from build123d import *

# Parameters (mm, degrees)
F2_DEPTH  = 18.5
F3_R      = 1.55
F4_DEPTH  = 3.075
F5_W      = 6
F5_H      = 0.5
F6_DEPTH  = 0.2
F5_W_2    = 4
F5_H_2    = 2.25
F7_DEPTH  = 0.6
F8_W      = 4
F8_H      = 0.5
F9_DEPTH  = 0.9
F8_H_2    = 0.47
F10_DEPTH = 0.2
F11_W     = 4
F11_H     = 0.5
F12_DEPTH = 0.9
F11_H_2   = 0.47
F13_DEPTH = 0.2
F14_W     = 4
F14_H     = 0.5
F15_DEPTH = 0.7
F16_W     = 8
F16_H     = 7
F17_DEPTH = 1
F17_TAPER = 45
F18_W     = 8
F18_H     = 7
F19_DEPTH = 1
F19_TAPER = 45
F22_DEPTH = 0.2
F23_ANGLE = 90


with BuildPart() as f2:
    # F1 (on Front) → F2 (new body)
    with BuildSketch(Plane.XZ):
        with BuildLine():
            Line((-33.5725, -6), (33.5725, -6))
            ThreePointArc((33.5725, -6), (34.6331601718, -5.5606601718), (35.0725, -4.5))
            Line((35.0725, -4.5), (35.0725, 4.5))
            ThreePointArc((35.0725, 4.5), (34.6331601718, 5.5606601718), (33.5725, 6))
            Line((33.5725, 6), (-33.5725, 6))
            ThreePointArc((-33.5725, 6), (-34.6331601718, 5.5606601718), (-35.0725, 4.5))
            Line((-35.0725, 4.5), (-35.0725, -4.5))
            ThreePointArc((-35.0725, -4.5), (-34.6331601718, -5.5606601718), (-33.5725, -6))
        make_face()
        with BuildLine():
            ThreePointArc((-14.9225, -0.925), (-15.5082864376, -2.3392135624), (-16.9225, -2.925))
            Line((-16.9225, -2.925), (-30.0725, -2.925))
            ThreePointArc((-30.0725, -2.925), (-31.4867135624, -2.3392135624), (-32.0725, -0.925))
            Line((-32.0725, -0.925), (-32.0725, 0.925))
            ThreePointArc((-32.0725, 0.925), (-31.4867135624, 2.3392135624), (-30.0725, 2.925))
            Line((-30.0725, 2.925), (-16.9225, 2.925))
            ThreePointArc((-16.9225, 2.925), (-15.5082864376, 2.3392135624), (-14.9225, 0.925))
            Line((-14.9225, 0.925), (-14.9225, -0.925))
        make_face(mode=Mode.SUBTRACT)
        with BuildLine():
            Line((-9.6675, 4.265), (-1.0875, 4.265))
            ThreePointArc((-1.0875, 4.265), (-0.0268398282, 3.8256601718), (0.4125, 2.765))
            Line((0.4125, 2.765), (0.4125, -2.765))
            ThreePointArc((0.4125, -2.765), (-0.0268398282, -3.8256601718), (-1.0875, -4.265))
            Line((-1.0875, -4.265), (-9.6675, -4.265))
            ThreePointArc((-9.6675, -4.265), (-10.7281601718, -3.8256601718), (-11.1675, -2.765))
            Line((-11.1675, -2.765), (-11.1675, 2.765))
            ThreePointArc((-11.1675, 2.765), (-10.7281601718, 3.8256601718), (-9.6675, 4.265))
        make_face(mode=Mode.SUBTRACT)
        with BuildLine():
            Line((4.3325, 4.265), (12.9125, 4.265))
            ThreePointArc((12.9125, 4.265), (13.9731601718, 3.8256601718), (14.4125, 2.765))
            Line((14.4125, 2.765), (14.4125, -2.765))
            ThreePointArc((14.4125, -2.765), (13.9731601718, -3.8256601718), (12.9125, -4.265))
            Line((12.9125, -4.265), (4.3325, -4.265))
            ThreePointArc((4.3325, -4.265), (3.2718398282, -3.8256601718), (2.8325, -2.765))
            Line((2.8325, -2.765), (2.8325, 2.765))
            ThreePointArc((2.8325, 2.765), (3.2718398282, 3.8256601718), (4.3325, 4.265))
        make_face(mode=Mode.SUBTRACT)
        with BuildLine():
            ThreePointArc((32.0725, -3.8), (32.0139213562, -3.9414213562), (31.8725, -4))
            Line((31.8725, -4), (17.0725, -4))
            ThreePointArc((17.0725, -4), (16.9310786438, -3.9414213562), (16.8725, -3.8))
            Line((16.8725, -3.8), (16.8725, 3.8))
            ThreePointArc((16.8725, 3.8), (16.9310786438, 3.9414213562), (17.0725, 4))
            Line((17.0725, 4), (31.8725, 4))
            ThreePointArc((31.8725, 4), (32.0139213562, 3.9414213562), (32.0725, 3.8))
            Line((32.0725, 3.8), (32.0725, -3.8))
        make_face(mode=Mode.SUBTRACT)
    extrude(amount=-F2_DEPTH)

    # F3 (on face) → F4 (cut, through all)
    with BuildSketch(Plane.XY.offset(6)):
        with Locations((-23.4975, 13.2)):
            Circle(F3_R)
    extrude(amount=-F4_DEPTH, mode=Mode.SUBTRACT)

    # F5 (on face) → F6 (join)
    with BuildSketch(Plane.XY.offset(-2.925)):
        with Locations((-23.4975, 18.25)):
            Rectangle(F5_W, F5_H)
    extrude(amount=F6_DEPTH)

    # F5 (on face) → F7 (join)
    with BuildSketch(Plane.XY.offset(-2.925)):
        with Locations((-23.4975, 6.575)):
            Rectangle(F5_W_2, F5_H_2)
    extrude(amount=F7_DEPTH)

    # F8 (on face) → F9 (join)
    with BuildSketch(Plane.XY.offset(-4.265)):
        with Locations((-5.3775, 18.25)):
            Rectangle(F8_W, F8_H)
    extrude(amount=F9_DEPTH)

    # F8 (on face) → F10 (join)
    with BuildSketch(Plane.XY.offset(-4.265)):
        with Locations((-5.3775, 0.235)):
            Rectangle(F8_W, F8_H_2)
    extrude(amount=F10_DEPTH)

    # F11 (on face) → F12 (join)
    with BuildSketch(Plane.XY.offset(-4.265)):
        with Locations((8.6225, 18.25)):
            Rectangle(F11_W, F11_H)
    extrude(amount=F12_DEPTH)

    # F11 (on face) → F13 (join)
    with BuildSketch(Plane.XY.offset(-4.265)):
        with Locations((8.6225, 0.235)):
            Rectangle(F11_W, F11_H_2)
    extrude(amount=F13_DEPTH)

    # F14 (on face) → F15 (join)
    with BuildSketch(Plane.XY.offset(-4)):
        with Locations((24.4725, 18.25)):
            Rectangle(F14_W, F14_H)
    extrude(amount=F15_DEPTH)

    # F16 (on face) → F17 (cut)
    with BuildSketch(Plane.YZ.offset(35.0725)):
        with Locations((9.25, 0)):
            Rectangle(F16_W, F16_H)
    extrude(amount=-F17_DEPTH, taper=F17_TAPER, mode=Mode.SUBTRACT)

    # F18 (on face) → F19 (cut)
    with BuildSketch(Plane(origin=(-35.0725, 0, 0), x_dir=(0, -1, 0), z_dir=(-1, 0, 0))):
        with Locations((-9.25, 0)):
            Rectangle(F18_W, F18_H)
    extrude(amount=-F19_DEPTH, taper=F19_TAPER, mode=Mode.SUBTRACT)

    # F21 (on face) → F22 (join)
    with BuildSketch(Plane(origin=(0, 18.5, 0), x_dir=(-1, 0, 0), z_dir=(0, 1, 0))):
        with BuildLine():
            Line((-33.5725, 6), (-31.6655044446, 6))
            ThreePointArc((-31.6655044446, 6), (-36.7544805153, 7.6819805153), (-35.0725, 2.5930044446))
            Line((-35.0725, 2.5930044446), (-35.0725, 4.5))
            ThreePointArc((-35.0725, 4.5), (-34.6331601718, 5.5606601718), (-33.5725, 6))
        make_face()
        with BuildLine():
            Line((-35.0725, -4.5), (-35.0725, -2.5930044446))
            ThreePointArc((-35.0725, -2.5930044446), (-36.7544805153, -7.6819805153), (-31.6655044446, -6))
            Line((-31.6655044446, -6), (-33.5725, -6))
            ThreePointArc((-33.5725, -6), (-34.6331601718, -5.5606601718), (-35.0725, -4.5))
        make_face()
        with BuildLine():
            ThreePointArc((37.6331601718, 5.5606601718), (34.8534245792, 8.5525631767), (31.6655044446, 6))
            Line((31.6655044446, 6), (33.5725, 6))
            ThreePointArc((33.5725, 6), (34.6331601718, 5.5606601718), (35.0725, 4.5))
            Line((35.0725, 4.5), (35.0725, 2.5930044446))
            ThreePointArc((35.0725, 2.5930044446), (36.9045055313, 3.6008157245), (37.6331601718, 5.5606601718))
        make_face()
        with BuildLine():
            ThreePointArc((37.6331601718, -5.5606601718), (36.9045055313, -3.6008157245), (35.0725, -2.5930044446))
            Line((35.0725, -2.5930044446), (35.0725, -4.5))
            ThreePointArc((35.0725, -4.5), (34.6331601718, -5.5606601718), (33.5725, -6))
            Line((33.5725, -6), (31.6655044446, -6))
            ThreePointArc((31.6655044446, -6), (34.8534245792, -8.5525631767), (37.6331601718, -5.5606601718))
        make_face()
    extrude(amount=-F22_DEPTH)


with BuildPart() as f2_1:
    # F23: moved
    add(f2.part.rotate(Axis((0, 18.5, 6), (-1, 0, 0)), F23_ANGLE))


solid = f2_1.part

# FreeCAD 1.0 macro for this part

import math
import FreeCAD as App
import Part
import Sketcher


def add_polygon(sketch, points):
    """Adds a closed chain of lines whose ends are joined by coincident constraints."""
    first, n = sketch.GeometryCount, len(points)
    for a, b in zip(points, points[1:] + points[:1]):
        sketch.addGeometry(Part.LineSegment(App.Vector(*a, 0), App.Vector(*b, 0)), False)
    for i in range(n):
        sketch.addConstraint(Sketcher.Constraint("Coincident", first + i, 2, first + (i + 1) % n, 1))

doc = App.newDocument("Part")
params = doc.addObject("Spreadsheet::Sheet", "Params")
for row, (alias, value) in enumerate([
    ("sketch1_radius", "2 mm"),
    ("sketch1_radius2", "1.5 mm"),
    ("sketch1_radius3", "0.2 mm"),
    ("sketch1_height", "9 mm"),
    ("sketch1_width", "14.8 mm"),
    ("pad1_length", "18.5 mm"),
    ("sketch2_diameter", "3.1 mm"),
    ("pocket1_length", "3.075 mm"),
    ("sketch3_width", "6 mm"),
    ("sketch3_height", "0.5 mm"),
    ("pad2_length", "0.2 mm"),
    ("sketch4_width", "4 mm"),
    ("sketch4_height", "2.25 mm"),
    ("pad3_length", "0.6 mm"),
    ("sketch5_width", "4 mm"),
    ("sketch5_height", "0.5 mm"),
    ("pad4_length", "0.9 mm"),
    ("sketch6_width", "4 mm"),
    ("sketch6_height", "0.47 mm"),
    ("pad5_length", "0.2 mm"),
    ("sketch7_width", "4 mm"),
    ("sketch7_height", "0.5 mm"),
    ("pad6_length", "0.9 mm"),
    ("sketch8_width", "4 mm"),
    ("sketch8_height", "0.47 mm"),
    ("pad7_length", "0.2 mm"),
    ("sketch9_width", "4 mm"),
    ("sketch9_height", "0.5 mm"),
    ("pad8_length", "0.7 mm"),
    ("sketch10_width", "8 mm"),
    ("sketch10_height", "7 mm"),
    ("pocket2_length", "1 mm"),
    ("pocket2_taper", "-45 deg"),
    ("sketch11_width", "8 mm"),
    ("sketch11_height", "7 mm"),
    ("pocket3_length", "1 mm"),
    ("pocket3_taper", "-45 deg"),
    ("sketch12_radius", "3 mm"),
    ("sketch12_radius2", "1.5 mm"),
    ("pad9_length", "0.2 mm"),
], start=1):
    params.set(f"A{row}", alias)
    params.set(f"B{row}", "=" + value)
    params.setAlias(f"B{row}", alias)

body = doc.addObject("PartDesign::Body", "Body")

sketch1 = body.newObject("Sketcher::SketchObject", "Sketch")
sketch1.AttachmentSupport = (doc.getObject("XZ_Plane"), [""])
sketch1.MapMode = "FlatFace"
sketch1.addGeometry([
    Part.LineSegment(App.Vector(-33.57, -6, 0), App.Vector(33.57, -6, 0)),
    Part.ArcOfCircle(Part.Circle(App.Vector(33.57, -4.5, 0), App.Vector(0, 0, 1), 1.5), math.radians(-90), math.radians(0)),
    Part.LineSegment(App.Vector(35.07, -4.5, 0), App.Vector(35.07, 4.5, 0)),
    Part.ArcOfCircle(Part.Circle(App.Vector(33.57, 4.5, 0), App.Vector(0, 0, 1), 1.5), math.radians(0), math.radians(90)),
    Part.LineSegment(App.Vector(33.57, 6, 0), App.Vector(-33.57, 6, 0)),
    Part.ArcOfCircle(Part.Circle(App.Vector(-33.57, 4.5, 0), App.Vector(0, 0, 1), 1.5), math.radians(90), math.radians(180)),
    Part.LineSegment(App.Vector(-35.07, 4.5, 0), App.Vector(-35.07, -4.5, 0)),
    Part.ArcOfCircle(Part.Circle(App.Vector(-33.57, -4.5, 0), App.Vector(0, 0, 1), 1.5), math.radians(180), math.radians(270)),
    Part.LineSegment(App.Vector(-14.92, 0.93, 0), App.Vector(-14.92, -0.93, 0)),
    Part.ArcOfCircle(Part.Circle(App.Vector(-16.92, -0.93, 0), App.Vector(0, 0, 1), 2), math.radians(-90), math.radians(0)),
    Part.LineSegment(App.Vector(-16.92, -2.92, 0), App.Vector(-30.07, -2.92, 0)),
    Part.ArcOfCircle(Part.Circle(App.Vector(-30.07, -0.93, 0), App.Vector(0, 0, 1), 2), math.radians(180), math.radians(270)),
    Part.LineSegment(App.Vector(-32.07, -0.93, 0), App.Vector(-32.07, 0.93, 0)),
    Part.ArcOfCircle(Part.Circle(App.Vector(-30.07, 0.93, 0), App.Vector(0, 0, 1), 2), math.radians(90), math.radians(180)),
    Part.LineSegment(App.Vector(-30.07, 2.92, 0), App.Vector(-16.92, 2.92, 0)),
    Part.ArcOfCircle(Part.Circle(App.Vector(-16.92, 0.93, 0), App.Vector(0, 0, 1), 2), math.radians(0), math.radians(90)),
    Part.ArcOfCircle(Part.Circle(App.Vector(-9.67, 2.77, 0), App.Vector(0, 0, 1), 1.5), math.radians(90), math.radians(180)),
    Part.LineSegment(App.Vector(-9.67, 4.26, 0), App.Vector(-1.09, 4.26, 0)),
    Part.ArcOfCircle(Part.Circle(App.Vector(-1.09, 2.77, 0), App.Vector(0, 0, 1), 1.5), math.radians(0), math.radians(90)),
    Part.LineSegment(App.Vector(0.41, 2.77, 0), App.Vector(0.41, -2.77, 0)),
    Part.ArcOfCircle(Part.Circle(App.Vector(-1.09, -2.77, 0), App.Vector(0, 0, 1), 1.5), math.radians(-90), math.radians(0)),
    Part.LineSegment(App.Vector(-1.09, -4.26, 0), App.Vector(-9.67, -4.26, 0)),
    Part.ArcOfCircle(Part.Circle(App.Vector(-9.67, -2.77, 0), App.Vector(0, 0, 1), 1.5), math.radians(180), math.radians(270)),
    Part.LineSegment(App.Vector(-11.17, -2.77, 0), App.Vector(-11.17, 2.77, 0)),
    Part.ArcOfCircle(Part.Circle(App.Vector(4.33, 2.77, 0), App.Vector(0, 0, 1), 1.5), math.radians(90), math.radians(180)),
    Part.LineSegment(App.Vector(4.33, 4.26, 0), App.Vector(12.91, 4.26, 0)),
    Part.ArcOfCircle(Part.Circle(App.Vector(12.91, 2.77, 0), App.Vector(0, 0, 1), 1.5), math.radians(0), math.radians(90)),
    Part.LineSegment(App.Vector(14.41, 2.77, 0), App.Vector(14.41, -2.77, 0)),
    Part.ArcOfCircle(Part.Circle(App.Vector(12.91, -2.77, 0), App.Vector(0, 0, 1), 1.5), math.radians(-90), math.radians(0)),
    Part.LineSegment(App.Vector(12.91, -4.26, 0), App.Vector(4.33, -4.26, 0)),
    Part.ArcOfCircle(Part.Circle(App.Vector(4.33, -2.77, 0), App.Vector(0, 0, 1), 1.5), math.radians(180), math.radians(270)),
    Part.LineSegment(App.Vector(2.83, -2.77, 0), App.Vector(2.83, 2.77, 0)),
    Part.LineSegment(App.Vector(32.07, 3.8, 0), App.Vector(32.07, -3.8, 0)),
    Part.ArcOfCircle(Part.Circle(App.Vector(31.87, -3.8, 0), App.Vector(0, 0, 1), 0.2), math.radians(-90), math.radians(0)),
    Part.LineSegment(App.Vector(31.87, -4, 0), App.Vector(17.07, -4, 0)),
    Part.ArcOfCircle(Part.Circle(App.Vector(17.07, -3.8, 0), App.Vector(0, 0, 1), 0.2), math.radians(180), math.radians(270)),
    Part.LineSegment(App.Vector(16.87, -3.8, 0), App.Vector(16.87, 3.8, 0)),
    Part.ArcOfCircle(Part.Circle(App.Vector(17.07, 3.8, 0), App.Vector(0, 0, 1), 0.2), math.radians(90), math.radians(180)),
    Part.LineSegment(App.Vector(17.07, 4, 0), App.Vector(31.87, 4, 0)),
    Part.ArcOfCircle(Part.Circle(App.Vector(31.87, 3.8, 0), App.Vector(0, 0, 1), 0.2), math.radians(0), math.radians(90)),
], False)
sketch1.addConstraint([
    Sketcher.Constraint("Tangent", 0, 2, 1, 1),
    Sketcher.Constraint("Tangent", 1, 2, 2, 1),
    Sketcher.Constraint("Tangent", 2, 2, 3, 1),
    Sketcher.Constraint("Tangent", 3, 2, 4, 1),
    Sketcher.Constraint("Tangent", 4, 2, 5, 1),
    Sketcher.Constraint("Tangent", 5, 2, 6, 1),
    Sketcher.Constraint("Tangent", 6, 2, 7, 1),
    Sketcher.Constraint("Tangent", 7, 2, 0, 1),
    Sketcher.Constraint("Tangent", 8, 2, 9, 2),
    Sketcher.Constraint("Tangent", 9, 1, 10, 1),
    Sketcher.Constraint("Tangent", 10, 2, 11, 2),
    Sketcher.Constraint("Tangent", 11, 1, 12, 1),
    Sketcher.Constraint("Tangent", 12, 2, 13, 2),
    Sketcher.Constraint("Tangent", 13, 1, 14, 1),
    Sketcher.Constraint("Tangent", 14, 2, 15, 2),
    Sketcher.Constraint("Tangent", 15, 1, 8, 1),
    Sketcher.Constraint("Tangent", 16, 1, 17, 1),
    Sketcher.Constraint("Tangent", 17, 2, 18, 2),
    Sketcher.Constraint("Tangent", 18, 1, 19, 1),
    Sketcher.Constraint("Tangent", 19, 2, 20, 2),
    Sketcher.Constraint("Tangent", 20, 1, 21, 1),
    Sketcher.Constraint("Tangent", 21, 2, 22, 2),
    Sketcher.Constraint("Tangent", 22, 1, 23, 1),
    Sketcher.Constraint("Tangent", 23, 2, 16, 2),
    Sketcher.Constraint("Tangent", 24, 1, 25, 1),
    Sketcher.Constraint("Tangent", 25, 2, 26, 2),
    Sketcher.Constraint("Tangent", 26, 1, 27, 1),
    Sketcher.Constraint("Tangent", 27, 2, 28, 2),
    Sketcher.Constraint("Tangent", 28, 1, 29, 1),
    Sketcher.Constraint("Tangent", 29, 2, 30, 2),
    Sketcher.Constraint("Tangent", 30, 1, 31, 1),
    Sketcher.Constraint("Tangent", 31, 2, 24, 2),
    Sketcher.Constraint("Tangent", 32, 2, 33, 2),
    Sketcher.Constraint("Tangent", 33, 1, 34, 1),
    Sketcher.Constraint("Tangent", 34, 2, 35, 2),
    Sketcher.Constraint("Tangent", 35, 1, 36, 1),
    Sketcher.Constraint("Tangent", 36, 2, 37, 2),
    Sketcher.Constraint("Tangent", 37, 1, 38, 1),
    Sketcher.Constraint("Tangent", 38, 2, 39, 2),
    Sketcher.Constraint("Tangent", 39, 1, 32, 1),
    Sketcher.Constraint("Horizontal", 0),
    Sketcher.Constraint("Vertical", 2),
    Sketcher.Constraint("Horizontal", 4),
    Sketcher.Constraint("Vertical", 6),
    Sketcher.Constraint("Vertical", 8),
    Sketcher.Constraint("Horizontal", 10),
    Sketcher.Constraint("Vertical", 12),
    Sketcher.Constraint("Horizontal", 14),
    Sketcher.Constraint("Horizontal", 17),
    Sketcher.Constraint("Vertical", 19),
    Sketcher.Constraint("Horizontal", 21),
    Sketcher.Constraint("Vertical", 23),
    Sketcher.Constraint("Horizontal", 25),
    Sketcher.Constraint("Vertical", 27),
    Sketcher.Constraint("Horizontal", 29),
    Sketcher.Constraint("Vertical", 31),
    Sketcher.Constraint("Vertical", 32),
    Sketcher.Constraint("Horizontal", 34),
    Sketcher.Constraint("Vertical", 36),
    Sketcher.Constraint("Horizontal", 38),
    Sketcher.Constraint("Equal", 1, 3),
    Sketcher.Constraint("Equal", 3, 5),
    Sketcher.Constraint("Equal", 5, 7),
    Sketcher.Constraint("Equal", 9, 11),
    Sketcher.Constraint("Equal", 11, 13),
    Sketcher.Constraint("Equal", 13, 15),
    Sketcher.Constraint("Equal", 7, 16),
    Sketcher.Constraint("Equal", 16, 18),
    Sketcher.Constraint("Equal", 18, 20),
    Sketcher.Constraint("Equal", 20, 22),
    Sketcher.Constraint("Equal", 22, 24),
    Sketcher.Constraint("Equal", 24, 26),
    Sketcher.Constraint("Equal", 26, 28),
    Sketcher.Constraint("Equal", 28, 30),
    Sketcher.Constraint("Equal", 33, 35),
    Sketcher.Constraint("Equal", 35, 37),
    Sketcher.Constraint("Equal", 37, 39),
    Sketcher.Constraint("Symmetric", 1, 3, 5, 3, -1, 1),
    Sketcher.Constraint("Horizontal", 18, 3, 24, 3),
    Sketcher.Constraint("Horizontal", 22, 3, 28, 3),
    Sketcher.Constraint("Equal", 21, 25),
    Sketcher.Constraint("Radius", 9, 2.0),
    Sketcher.Constraint("Radius", 1, 1.5),
    Sketcher.Constraint("Radius", 33, 0.2),
    Sketcher.Constraint("DistanceY", 2, 1, 2, 2, 9.0),
    Sketcher.Constraint("DistanceX", 34, 2, 34, 1, 14.8),
    Sketcher.Constraint("DistanceY", 32, 2, 32, 1, 7.6),
    Sketcher.Constraint("DistanceY", 33, 1, -1, 1, 4.0),
    Sketcher.Constraint("DistanceX", 16, 3, 24, 3, 14.0),
    Sketcher.Constraint("DistanceX", 5, 2, 13, 3, 5.0),
    Sketcher.Constraint("DistanceX", 32, 2, 1, 2, 3.0),
    Sketcher.Constraint("DistanceX", 10, 2, 10, 1, 13.15),
    Sketcher.Constraint("DistanceX", 17, 1, 17, 2, 8.58),
    Sketcher.Constraint("DistanceY", 8, 2, 8, 1, 1.85),
    Sketcher.Constraint("DistanceY", 19, 2, 19, 1, 5.53),
    Sketcher.Constraint("DistanceX", 0, 1, 0, 2, 67.145),
    Sketcher.Constraint("DistanceY", 15, 3, 16, 3, 1.84),
    Sketcher.Constraint("DistanceX", 26, 3, 3, 3, 20.66),
    Sketcher.Constraint("DistanceY", 9, 3, -1, 1, 0.925),
])
sketch1.setExpression("Constraints[81]", "Params.sketch1_radius")
sketch1.setExpression("Constraints[82]", "Params.sketch1_radius2")
sketch1.setExpression("Constraints[83]", "Params.sketch1_radius3")
sketch1.setExpression("Constraints[84]", "Params.sketch1_height")
sketch1.setExpression("Constraints[85]", "Params.sketch1_width")
pad1 = body.newObject("PartDesign::Pad", "Pad")
pad1.Profile = sketch1
pad1.setExpression("Length", "Params.pad1_length")
pad1.Reversed = True

sketch2 = body.newObject("Sketcher::SketchObject", "Sketch001")
sketch2.AttachmentSupport = (doc.getObject("XY_Plane"), [""])
sketch2.MapMode = "FlatFace"
sketch2.AttachmentOffset = App.Placement(App.Vector(0, 0, 6), App.Rotation())
sketch2.addGeometry(Part.Circle(App.Vector(-23.5, 13.2, 0), App.Vector(0, 0, 1), 1.6), False)
sketch2.addConstraint([
    Sketcher.Constraint("Diameter", 0, 3.1),
    Sketcher.Constraint("DistanceY", -1, 1, 0, 3, 13.2),
    Sketcher.Constraint("DistanceX", 0, 3, -1, 1, 23.4975),
])
sketch2.setExpression("Constraints[0]", "Params.sketch2_diameter")
pocket1 = body.newObject("PartDesign::Pocket", "Pocket")
pocket1.Profile = sketch2
pocket1.setExpression("Length", "Params.pocket1_length")

sketch3 = body.newObject("Sketcher::SketchObject", "Sketch002")
sketch3.AttachmentSupport = (doc.getObject("XY_Plane"), [""])
sketch3.MapMode = "FlatFace"
sketch3.AttachmentOffset = App.Placement(App.Vector(0, 0, -2.925), App.Rotation())
add_polygon(sketch3, [(-26.5, 18.5), (-26.5, 18), (-20.5, 18), (-20.5, 18.5)])
sketch3.addConstraint([
    Sketcher.Constraint("Vertical", 0),
    Sketcher.Constraint("Horizontal", 1),
    Sketcher.Constraint("Vertical", 2),
    Sketcher.Constraint("Horizontal", 3),
    Sketcher.Constraint("DistanceX", 1, 1, 1, 2, 6.0),
    Sketcher.Constraint("DistanceY", 0, 2, 0, 1, 0.5),
    Sketcher.Constraint("DistanceY", -1, 1, 0, 2, 18.0),
    Sketcher.Constraint("DistanceX", 0, 2, -1, 1, 26.4975),
])
sketch3.setExpression("Constraints[8]", "Params.sketch3_width")
sketch3.setExpression("Constraints[9]", "Params.sketch3_height")
pad2 = body.newObject("PartDesign::Pad", "Pad001")
pad2.Profile = sketch3
pad2.setExpression("Length", "Params.pad2_length")

sketch4 = body.newObject("Sketcher::SketchObject", "Sketch003")
sketch4.AttachmentSupport = (doc.getObject("XY_Plane"), [""])
sketch4.MapMode = "FlatFace"
sketch4.AttachmentOffset = App.Placement(App.Vector(0, 0, -2.925), App.Rotation())
add_polygon(sketch4, [(-25.5, 7.7), (-25.5, 5.5), (-21.5, 5.5), (-21.5, 7.7)])
sketch4.addConstraint([
    Sketcher.Constraint("Vertical", 0),
    Sketcher.Constraint("Horizontal", 1),
    Sketcher.Constraint("Vertical", 2),
    Sketcher.Constraint("Horizontal", 3),
    Sketcher.Constraint("DistanceX", 1, 1, 1, 2, 4.0),
    Sketcher.Constraint("DistanceY", 0, 2, 0, 1, 2.25),
    Sketcher.Constraint("DistanceY", -1, 1, 2, 2, 7.7),
    Sketcher.Constraint("DistanceX", 0, 2, -1, 1, 25.4975),
])
sketch4.setExpression("Constraints[8]", "Params.sketch4_width")
sketch4.setExpression("Constraints[9]", "Params.sketch4_height")
pad3 = body.newObject("PartDesign::Pad", "Pad002")
pad3.Profile = sketch4
pad3.setExpression("Length", "Params.pad3_length")

sketch5 = body.newObject("Sketcher::SketchObject", "Sketch004")
sketch5.AttachmentSupport = (doc.getObject("XY_Plane"), [""])
sketch5.MapMode = "FlatFace"
sketch5.AttachmentOffset = App.Placement(App.Vector(0, 0, -4.265), App.Rotation())
add_polygon(sketch5, [(-7.4, 18.5), (-7.4, 18), (-3.4, 18), (-3.4, 18.5)])
sketch5.addConstraint([
    Sketcher.Constraint("Vertical", 0),
    Sketcher.Constraint("Horizontal", 1),
    Sketcher.Constraint("Vertical", 2),
    Sketcher.Constraint("Horizontal", 3),
    Sketcher.Constraint("DistanceX", 1, 1, 1, 2, 4.0),
    Sketcher.Constraint("DistanceY", 0, 2, 0, 1, 0.5),
    Sketcher.Constraint("DistanceY", -1, 1, 0, 2, 18.0),
    Sketcher.Constraint("DistanceX", 0, 2, -1, 1, 7.3775),
])
sketch5.setExpression("Constraints[8]", "Params.sketch5_width")
sketch5.setExpression("Constraints[9]", "Params.sketch5_height")
pad4 = body.newObject("PartDesign::Pad", "Pad003")
pad4.Profile = sketch5
pad4.setExpression("Length", "Params.pad4_length")

sketch6 = body.newObject("Sketcher::SketchObject", "Sketch005")
sketch6.AttachmentSupport = (doc.getObject("XY_Plane"), [""])
sketch6.MapMode = "FlatFace"
sketch6.AttachmentOffset = App.Placement(App.Vector(0, 0, -4.265), App.Rotation())
add_polygon(sketch6, [(-7.38, 0.47), (-7.38, 0), (-3.38, 0), (-3.38, 0.47)])
sketch6.addConstraint([
    Sketcher.Constraint("Vertical", 0),
    Sketcher.Constraint("Horizontal", 1),
    Sketcher.Constraint("Vertical", 2),
    Sketcher.Constraint("Horizontal", 3),
    Sketcher.Constraint("PointOnObject", 0, 2, -1),
    Sketcher.Constraint("DistanceX", 1, 1, 1, 2, 4.0),
    Sketcher.Constraint("DistanceY", 0, 2, 0, 1, 0.47),
    Sketcher.Constraint("DistanceX", 0, 2, -1, 1, 7.3775),
])
sketch6.setExpression("Constraints[9]", "Params.sketch6_width")
sketch6.setExpression("Constraints[10]", "Params.sketch6_height")
pad5 = body.newObject("PartDesign::Pad", "Pad004")
pad5.Profile = sketch6
pad5.setExpression("Length", "Params.pad5_length")

sketch7 = body.newObject("Sketcher::SketchObject", "Sketch006")
sketch7.AttachmentSupport = (doc.getObject("XY_Plane"), [""])
sketch7.MapMode = "FlatFace"
sketch7.AttachmentOffset = App.Placement(App.Vector(0, 0, -4.265), App.Rotation())
add_polygon(sketch7, [(6.6, 18.5), (6.6, 18), (10.6, 18), (10.6, 18.5)])
sketch7.addConstraint([
    Sketcher.Constraint("Vertical", 0),
    Sketcher.Constraint("Horizontal", 1),
    Sketcher.Constraint("Vertical", 2),
    Sketcher.Constraint("Horizontal", 3),
    Sketcher.Constraint("DistanceX", 1, 1, 1, 2, 4.0),
    Sketcher.Constraint("DistanceY", 0, 2, 0, 1, 0.5),
    Sketcher.Constraint("DistanceY", -1, 1, 0, 2, 18.0),
    Sketcher.Constraint("DistanceX", -1, 1, 0, 2, 6.6225),
])
sketch7.setExpression("Constraints[8]", "Params.sketch7_width")
sketch7.setExpression("Constraints[9]", "Params.sketch7_height")
pad6 = body.newObject("PartDesign::Pad", "Pad005")
pad6.Profile = sketch7
pad6.setExpression("Length", "Params.pad6_length")

sketch8 = body.newObject("Sketcher::SketchObject", "Sketch007")
sketch8.AttachmentSupport = (doc.getObject("XY_Plane"), [""])
sketch8.MapMode = "FlatFace"
sketch8.AttachmentOffset = App.Placement(App.Vector(0, 0, -4.265), App.Rotation())
add_polygon(sketch8, [(6.62, 0.47), (6.62, 0), (10.62, 0), (10.62, 0.47)])
sketch8.addConstraint([
    Sketcher.Constraint("Vertical", 0),
    Sketcher.Constraint("Horizontal", 1),
    Sketcher.Constraint("Vertical", 2),
    Sketcher.Constraint("Horizontal", 3),
    Sketcher.Constraint("PointOnObject", 0, 2, -1),
    Sketcher.Constraint("DistanceX", 1, 1, 1, 2, 4.0),
    Sketcher.Constraint("DistanceY", 0, 2, 0, 1, 0.47),
    Sketcher.Constraint("DistanceX", -1, 1, 0, 2, 6.6225),
])
sketch8.setExpression("Constraints[9]", "Params.sketch8_width")
sketch8.setExpression("Constraints[10]", "Params.sketch8_height")
pad7 = body.newObject("PartDesign::Pad", "Pad006")
pad7.Profile = sketch8
pad7.setExpression("Length", "Params.pad7_length")

sketch9 = body.newObject("Sketcher::SketchObject", "Sketch008")
sketch9.AttachmentSupport = (doc.getObject("XY_Plane"), [""])
sketch9.MapMode = "FlatFace"
sketch9.AttachmentOffset = App.Placement(App.Vector(0, 0, -4), App.Rotation())
add_polygon(sketch9, [(22.5, 18.5), (22.5, 18), (26.5, 18), (26.5, 18.5)])
sketch9.addConstraint([
    Sketcher.Constraint("Vertical", 0),
    Sketcher.Constraint("Horizontal", 1),
    Sketcher.Constraint("Vertical", 2),
    Sketcher.Constraint("Horizontal", 3),
    Sketcher.Constraint("DistanceX", 1, 1, 1, 2, 4.0),
    Sketcher.Constraint("DistanceY", 0, 2, 0, 1, 0.5),
    Sketcher.Constraint("DistanceY", -1, 1, 0, 2, 18.0),
    Sketcher.Constraint("DistanceX", -1, 1, 0, 2, 22.4725),
])
sketch9.setExpression("Constraints[8]", "Params.sketch9_width")
sketch9.setExpression("Constraints[9]", "Params.sketch9_height")
pad8 = body.newObject("PartDesign::Pad", "Pad007")
pad8.Profile = sketch9
pad8.setExpression("Length", "Params.pad8_length")

sketch10 = body.newObject("Sketcher::SketchObject", "Sketch009")
sketch10.AttachmentSupport = (doc.getObject("YZ_Plane"), [""])
sketch10.MapMode = "FlatFace"
sketch10.AttachmentOffset = App.Placement(App.Vector(0, 0, 35.0725), App.Rotation())
add_polygon(sketch10, [(5, 4), (5, -4), (13, -4), (13, 4)])
sketch10.addConstraint([
    Sketcher.Constraint("Vertical", 0),
    Sketcher.Constraint("Horizontal", 1),
    Sketcher.Constraint("Vertical", 2),
    Sketcher.Constraint("Horizontal", 3),
    Sketcher.Constraint("DistanceX", 1, 1, 1, 2, 8.0),
    Sketcher.Constraint("DistanceY", 0, 2, 0, 1, 7.0),
    Sketcher.Constraint("DistanceY", 0, 2, -1, 1, 3.5),
    Sketcher.Constraint("DistanceX", -1, 1, 0, 2, 5.25),
])
sketch10.setExpression("Constraints[8]", "Params.sketch10_width")
sketch10.setExpression("Constraints[9]", "Params.sketch10_height")
pocket2 = body.newObject("PartDesign::Pocket", "Pocket001")
pocket2.Profile = sketch10
pocket2.setExpression("Length", "Params.pocket2_length")
pocket2.setExpression("TaperAngle", "Params.pocket2_taper")

sketch11 = body.newObject("Sketcher::SketchObject", "Sketch010")
sketch11.AttachmentSupport = (doc.getObject("YZ_Plane"), [""])
sketch11.MapMode = "FlatFace"
sketch11.AttachmentOffset = App.Placement(App.Vector(0, 0, -35.0725), App.Rotation())
add_polygon(sketch11, [(13, 4), (13, -4), (5, -4), (5, 4)])
sketch11.addConstraint([
    Sketcher.Constraint("Vertical", 0),
    Sketcher.Constraint("Horizontal", 1),
    Sketcher.Constraint("Vertical", 2),
    Sketcher.Constraint("Horizontal", 3),
    Sketcher.Constraint("DistanceX", 1, 2, 1, 1, 8.0),
    Sketcher.Constraint("DistanceY", 0, 2, 0, 1, 7.0),
    Sketcher.Constraint("DistanceY", 0, 2, -1, 1, 3.5),
    Sketcher.Constraint("DistanceX", -1, 1, 0, 2, 13.25),
])
sketch11.setExpression("Constraints[8]", "Params.sketch11_width")
sketch11.setExpression("Constraints[9]", "Params.sketch11_height")
pocket3 = body.newObject("PartDesign::Pocket", "Pocket002")
pocket3.Profile = sketch11
pocket3.setExpression("Length", "Params.pocket3_length")
pocket3.Reversed = True
pocket3.setExpression("TaperAngle", "Params.pocket3_taper")

sketch12 = body.newObject("Sketcher::SketchObject", "Sketch011")
sketch12.AttachmentSupport = (doc.getObject("XZ_Plane"), [""])
sketch12.MapMode = "FlatFace"
sketch12.AttachmentOffset = App.Placement(App.Vector(0, 0, -18.5), App.Rotation())
sketch12.addGeometry([
    Part.LineSegment(App.Vector(33.6, 6, 0), App.Vector(31.7, 6, 0)),
    Part.ArcOfCircle(Part.Circle(App.Vector(34.6, 5.6, 0), App.Vector(0, 0, 1), 3), math.radians(-82), math.radians(172)),
    Part.LineSegment(App.Vector(35.1, 2.6, 0), App.Vector(35.1, 4.5, 0)),
    Part.ArcOfCircle(Part.Circle(App.Vector(33.6, 4.5, 0), App.Vector(0, 0, 1), 1.5), math.radians(0), math.radians(90)),
    Part.LineSegment(App.Vector(35.1, -4.5, 0), App.Vector(35.1, -2.6, 0)),
    Part.ArcOfCircle(Part.Circle(App.Vector(34.6, -5.6, 0), App.Vector(0, 0, 1), 3), math.radians(-172), math.radians(82)),
    Part.LineSegment(App.Vector(31.7, -6, 0), App.Vector(33.6, -6, 0)),
    Part.ArcOfCircle(Part.Circle(App.Vector(33.6, -4.5, 0), App.Vector(0, 0, 1), 1.5), math.radians(-90), math.radians(0)),
    Part.ArcOfCircle(Part.Circle(App.Vector(-34.6, 5.6, 0), App.Vector(0, 0, 1), 3), math.radians(8), math.radians(180)),
    Part.LineSegment(App.Vector(-31.7, 6, 0), App.Vector(-33.6, 6, 0)),
    Part.ArcOfCircle(Part.Circle(App.Vector(-33.6, 4.5, 0), App.Vector(0, 0, 1), 1.5), math.radians(90), math.radians(180)),
    Part.LineSegment(App.Vector(-35.1, 4.5, 0), App.Vector(-35.1, 2.6, 0)),
    Part.ArcOfCircle(Part.Circle(App.Vector(-34.6, 5.6, 0), App.Vector(0, 0, 1), 3), math.radians(180), math.radians(262)),
    Part.ArcOfCircle(Part.Circle(App.Vector(-34.6, -5.6, 0), App.Vector(0, 0, 1), 3), math.radians(98), math.radians(180)),
    Part.LineSegment(App.Vector(-35.1, -2.6, 0), App.Vector(-35.1, -4.5, 0)),
    Part.ArcOfCircle(Part.Circle(App.Vector(-33.6, -4.5, 0), App.Vector(0, 0, 1), 1.5), math.radians(180), math.radians(270)),
    Part.LineSegment(App.Vector(-33.6, -6, 0), App.Vector(-31.7, -6, 0)),
    Part.ArcOfCircle(Part.Circle(App.Vector(-34.6, -5.6, 0), App.Vector(0, 0, 1), 3), math.radians(180), math.radians(352)),
], False)
sketch12.addConstraint([
    Sketcher.Constraint("Coincident", 0, 2, 1, 2),
    Sketcher.Constraint("Coincident", 1, 1, 2, 1),
    Sketcher.Constraint("Tangent", 2, 2, 3, 1),
    Sketcher.Constraint("Tangent", 3, 2, 0, 1),
    Sketcher.Constraint("Coincident", 4, 2, 5, 2),
    Sketcher.Constraint("Coincident", 5, 1, 6, 1),
    Sketcher.Constraint("Tangent", 6, 2, 7, 1),
    Sketcher.Constraint("Tangent", 7, 2, 4, 1),
    Sketcher.Constraint("Coincident", 8, 1, 9, 1),
    Sketcher.Constraint("Tangent", 9, 2, 10, 1),
    Sketcher.Constraint("Tangent", 10, 2, 11, 1),
    Sketcher.Constraint("Coincident", 11, 2, 12, 2),
    Sketcher.Constraint("Tangent", 12, 1, 8, 2),
    Sketcher.Constraint("Coincident", 13, 1, 14, 1),
    Sketcher.Constraint("Tangent", 14, 2, 15, 1),
    Sketcher.Constraint("Tangent", 15, 2, 16, 1),
    Sketcher.Constraint("Coincident", 16, 2, 17, 2),
    Sketcher.Constraint("Tangent", 17, 1, 13, 2),
    Sketcher.Constraint("Horizontal", 0),
    Sketcher.Constraint("Vertical", 2),
    Sketcher.Constraint("Vertical", 4),
    Sketcher.Constraint("Horizontal", 6),
    Sketcher.Constraint("Horizontal", 9),
    Sketcher.Constraint("Vertical", 11),
    Sketcher.Constraint("Vertical", 14),
    Sketcher.Constraint("Horizontal", 16),
    Sketcher.Constraint("Equal", 1, 5),
    Sketcher.Constraint("Equal", 3, 7),
    Sketcher.Constraint("Equal", 5, 8),
    Sketcher.Constraint("Equal", 7, 10),
    Sketcher.Constraint("Equal", 8, 12),
    Sketcher.Constraint("Equal", 12, 13),
    Sketcher.Constraint("Equal", 10, 15),
    Sketcher.Constraint("Equal", 13, 17),
    Sketcher.Constraint("Symmetric", 5, 3, 8, 3, -1, 1),
    Sketcher.Constraint("Symmetric", 7, 3, 10, 3, -1, 1),
    Sketcher.Constraint("Symmetric", 1, 3, 13, 3, -1, 1),
    Sketcher.Constraint("Symmetric", 3, 3, 15, 3, -1, 1),
    Sketcher.Constraint("Symmetric", 1, 3, 8, 3, -2),
    Sketcher.Constraint("Symmetric", 3, 3, 10, 3, -2),
    Sketcher.Constraint("Horizontal", 8, 3, 12, 1),
    Sketcher.Constraint("Horizontal", 13, 3, 17, 1),
    Sketcher.Constraint("Equal", 16, 2),
    Sketcher.Constraint("Radius", 1, 3.0),
    Sketcher.Constraint("Radius", 3, 1.5),
    Sketcher.Constraint("DistanceY", -1, 1, 0, 2, 6.0),
    Sketcher.Constraint("DistanceX", 10, 3, 3, 3, 67.145),
    Sketcher.Constraint("DistanceX", 0, 2, 0, 1, 1.906996),
])
sketch12.setExpression("Constraints[43]", "Params.sketch12_radius")
sketch12.setExpression("Constraints[44]", "Params.sketch12_radius2")
pad9 = body.newObject("PartDesign::Pad", "Pad008")
pad9.Profile = sketch12
pad9.setExpression("Length", "Params.pad9_length")
body2 = doc.addObject("PartDesign::Body", "Body001")
doc.recompute()

body.Placement = App.Placement(App.Vector(0, 12.5, 24.5), App.Rotation(App.Vector(-1, 0, 0), 90))
boolean = body2.newObject("PartDesign::Boolean", "Boolean")
boolean.Type = "Fuse"
boolean.addObjects([body])

doc.recompute()
